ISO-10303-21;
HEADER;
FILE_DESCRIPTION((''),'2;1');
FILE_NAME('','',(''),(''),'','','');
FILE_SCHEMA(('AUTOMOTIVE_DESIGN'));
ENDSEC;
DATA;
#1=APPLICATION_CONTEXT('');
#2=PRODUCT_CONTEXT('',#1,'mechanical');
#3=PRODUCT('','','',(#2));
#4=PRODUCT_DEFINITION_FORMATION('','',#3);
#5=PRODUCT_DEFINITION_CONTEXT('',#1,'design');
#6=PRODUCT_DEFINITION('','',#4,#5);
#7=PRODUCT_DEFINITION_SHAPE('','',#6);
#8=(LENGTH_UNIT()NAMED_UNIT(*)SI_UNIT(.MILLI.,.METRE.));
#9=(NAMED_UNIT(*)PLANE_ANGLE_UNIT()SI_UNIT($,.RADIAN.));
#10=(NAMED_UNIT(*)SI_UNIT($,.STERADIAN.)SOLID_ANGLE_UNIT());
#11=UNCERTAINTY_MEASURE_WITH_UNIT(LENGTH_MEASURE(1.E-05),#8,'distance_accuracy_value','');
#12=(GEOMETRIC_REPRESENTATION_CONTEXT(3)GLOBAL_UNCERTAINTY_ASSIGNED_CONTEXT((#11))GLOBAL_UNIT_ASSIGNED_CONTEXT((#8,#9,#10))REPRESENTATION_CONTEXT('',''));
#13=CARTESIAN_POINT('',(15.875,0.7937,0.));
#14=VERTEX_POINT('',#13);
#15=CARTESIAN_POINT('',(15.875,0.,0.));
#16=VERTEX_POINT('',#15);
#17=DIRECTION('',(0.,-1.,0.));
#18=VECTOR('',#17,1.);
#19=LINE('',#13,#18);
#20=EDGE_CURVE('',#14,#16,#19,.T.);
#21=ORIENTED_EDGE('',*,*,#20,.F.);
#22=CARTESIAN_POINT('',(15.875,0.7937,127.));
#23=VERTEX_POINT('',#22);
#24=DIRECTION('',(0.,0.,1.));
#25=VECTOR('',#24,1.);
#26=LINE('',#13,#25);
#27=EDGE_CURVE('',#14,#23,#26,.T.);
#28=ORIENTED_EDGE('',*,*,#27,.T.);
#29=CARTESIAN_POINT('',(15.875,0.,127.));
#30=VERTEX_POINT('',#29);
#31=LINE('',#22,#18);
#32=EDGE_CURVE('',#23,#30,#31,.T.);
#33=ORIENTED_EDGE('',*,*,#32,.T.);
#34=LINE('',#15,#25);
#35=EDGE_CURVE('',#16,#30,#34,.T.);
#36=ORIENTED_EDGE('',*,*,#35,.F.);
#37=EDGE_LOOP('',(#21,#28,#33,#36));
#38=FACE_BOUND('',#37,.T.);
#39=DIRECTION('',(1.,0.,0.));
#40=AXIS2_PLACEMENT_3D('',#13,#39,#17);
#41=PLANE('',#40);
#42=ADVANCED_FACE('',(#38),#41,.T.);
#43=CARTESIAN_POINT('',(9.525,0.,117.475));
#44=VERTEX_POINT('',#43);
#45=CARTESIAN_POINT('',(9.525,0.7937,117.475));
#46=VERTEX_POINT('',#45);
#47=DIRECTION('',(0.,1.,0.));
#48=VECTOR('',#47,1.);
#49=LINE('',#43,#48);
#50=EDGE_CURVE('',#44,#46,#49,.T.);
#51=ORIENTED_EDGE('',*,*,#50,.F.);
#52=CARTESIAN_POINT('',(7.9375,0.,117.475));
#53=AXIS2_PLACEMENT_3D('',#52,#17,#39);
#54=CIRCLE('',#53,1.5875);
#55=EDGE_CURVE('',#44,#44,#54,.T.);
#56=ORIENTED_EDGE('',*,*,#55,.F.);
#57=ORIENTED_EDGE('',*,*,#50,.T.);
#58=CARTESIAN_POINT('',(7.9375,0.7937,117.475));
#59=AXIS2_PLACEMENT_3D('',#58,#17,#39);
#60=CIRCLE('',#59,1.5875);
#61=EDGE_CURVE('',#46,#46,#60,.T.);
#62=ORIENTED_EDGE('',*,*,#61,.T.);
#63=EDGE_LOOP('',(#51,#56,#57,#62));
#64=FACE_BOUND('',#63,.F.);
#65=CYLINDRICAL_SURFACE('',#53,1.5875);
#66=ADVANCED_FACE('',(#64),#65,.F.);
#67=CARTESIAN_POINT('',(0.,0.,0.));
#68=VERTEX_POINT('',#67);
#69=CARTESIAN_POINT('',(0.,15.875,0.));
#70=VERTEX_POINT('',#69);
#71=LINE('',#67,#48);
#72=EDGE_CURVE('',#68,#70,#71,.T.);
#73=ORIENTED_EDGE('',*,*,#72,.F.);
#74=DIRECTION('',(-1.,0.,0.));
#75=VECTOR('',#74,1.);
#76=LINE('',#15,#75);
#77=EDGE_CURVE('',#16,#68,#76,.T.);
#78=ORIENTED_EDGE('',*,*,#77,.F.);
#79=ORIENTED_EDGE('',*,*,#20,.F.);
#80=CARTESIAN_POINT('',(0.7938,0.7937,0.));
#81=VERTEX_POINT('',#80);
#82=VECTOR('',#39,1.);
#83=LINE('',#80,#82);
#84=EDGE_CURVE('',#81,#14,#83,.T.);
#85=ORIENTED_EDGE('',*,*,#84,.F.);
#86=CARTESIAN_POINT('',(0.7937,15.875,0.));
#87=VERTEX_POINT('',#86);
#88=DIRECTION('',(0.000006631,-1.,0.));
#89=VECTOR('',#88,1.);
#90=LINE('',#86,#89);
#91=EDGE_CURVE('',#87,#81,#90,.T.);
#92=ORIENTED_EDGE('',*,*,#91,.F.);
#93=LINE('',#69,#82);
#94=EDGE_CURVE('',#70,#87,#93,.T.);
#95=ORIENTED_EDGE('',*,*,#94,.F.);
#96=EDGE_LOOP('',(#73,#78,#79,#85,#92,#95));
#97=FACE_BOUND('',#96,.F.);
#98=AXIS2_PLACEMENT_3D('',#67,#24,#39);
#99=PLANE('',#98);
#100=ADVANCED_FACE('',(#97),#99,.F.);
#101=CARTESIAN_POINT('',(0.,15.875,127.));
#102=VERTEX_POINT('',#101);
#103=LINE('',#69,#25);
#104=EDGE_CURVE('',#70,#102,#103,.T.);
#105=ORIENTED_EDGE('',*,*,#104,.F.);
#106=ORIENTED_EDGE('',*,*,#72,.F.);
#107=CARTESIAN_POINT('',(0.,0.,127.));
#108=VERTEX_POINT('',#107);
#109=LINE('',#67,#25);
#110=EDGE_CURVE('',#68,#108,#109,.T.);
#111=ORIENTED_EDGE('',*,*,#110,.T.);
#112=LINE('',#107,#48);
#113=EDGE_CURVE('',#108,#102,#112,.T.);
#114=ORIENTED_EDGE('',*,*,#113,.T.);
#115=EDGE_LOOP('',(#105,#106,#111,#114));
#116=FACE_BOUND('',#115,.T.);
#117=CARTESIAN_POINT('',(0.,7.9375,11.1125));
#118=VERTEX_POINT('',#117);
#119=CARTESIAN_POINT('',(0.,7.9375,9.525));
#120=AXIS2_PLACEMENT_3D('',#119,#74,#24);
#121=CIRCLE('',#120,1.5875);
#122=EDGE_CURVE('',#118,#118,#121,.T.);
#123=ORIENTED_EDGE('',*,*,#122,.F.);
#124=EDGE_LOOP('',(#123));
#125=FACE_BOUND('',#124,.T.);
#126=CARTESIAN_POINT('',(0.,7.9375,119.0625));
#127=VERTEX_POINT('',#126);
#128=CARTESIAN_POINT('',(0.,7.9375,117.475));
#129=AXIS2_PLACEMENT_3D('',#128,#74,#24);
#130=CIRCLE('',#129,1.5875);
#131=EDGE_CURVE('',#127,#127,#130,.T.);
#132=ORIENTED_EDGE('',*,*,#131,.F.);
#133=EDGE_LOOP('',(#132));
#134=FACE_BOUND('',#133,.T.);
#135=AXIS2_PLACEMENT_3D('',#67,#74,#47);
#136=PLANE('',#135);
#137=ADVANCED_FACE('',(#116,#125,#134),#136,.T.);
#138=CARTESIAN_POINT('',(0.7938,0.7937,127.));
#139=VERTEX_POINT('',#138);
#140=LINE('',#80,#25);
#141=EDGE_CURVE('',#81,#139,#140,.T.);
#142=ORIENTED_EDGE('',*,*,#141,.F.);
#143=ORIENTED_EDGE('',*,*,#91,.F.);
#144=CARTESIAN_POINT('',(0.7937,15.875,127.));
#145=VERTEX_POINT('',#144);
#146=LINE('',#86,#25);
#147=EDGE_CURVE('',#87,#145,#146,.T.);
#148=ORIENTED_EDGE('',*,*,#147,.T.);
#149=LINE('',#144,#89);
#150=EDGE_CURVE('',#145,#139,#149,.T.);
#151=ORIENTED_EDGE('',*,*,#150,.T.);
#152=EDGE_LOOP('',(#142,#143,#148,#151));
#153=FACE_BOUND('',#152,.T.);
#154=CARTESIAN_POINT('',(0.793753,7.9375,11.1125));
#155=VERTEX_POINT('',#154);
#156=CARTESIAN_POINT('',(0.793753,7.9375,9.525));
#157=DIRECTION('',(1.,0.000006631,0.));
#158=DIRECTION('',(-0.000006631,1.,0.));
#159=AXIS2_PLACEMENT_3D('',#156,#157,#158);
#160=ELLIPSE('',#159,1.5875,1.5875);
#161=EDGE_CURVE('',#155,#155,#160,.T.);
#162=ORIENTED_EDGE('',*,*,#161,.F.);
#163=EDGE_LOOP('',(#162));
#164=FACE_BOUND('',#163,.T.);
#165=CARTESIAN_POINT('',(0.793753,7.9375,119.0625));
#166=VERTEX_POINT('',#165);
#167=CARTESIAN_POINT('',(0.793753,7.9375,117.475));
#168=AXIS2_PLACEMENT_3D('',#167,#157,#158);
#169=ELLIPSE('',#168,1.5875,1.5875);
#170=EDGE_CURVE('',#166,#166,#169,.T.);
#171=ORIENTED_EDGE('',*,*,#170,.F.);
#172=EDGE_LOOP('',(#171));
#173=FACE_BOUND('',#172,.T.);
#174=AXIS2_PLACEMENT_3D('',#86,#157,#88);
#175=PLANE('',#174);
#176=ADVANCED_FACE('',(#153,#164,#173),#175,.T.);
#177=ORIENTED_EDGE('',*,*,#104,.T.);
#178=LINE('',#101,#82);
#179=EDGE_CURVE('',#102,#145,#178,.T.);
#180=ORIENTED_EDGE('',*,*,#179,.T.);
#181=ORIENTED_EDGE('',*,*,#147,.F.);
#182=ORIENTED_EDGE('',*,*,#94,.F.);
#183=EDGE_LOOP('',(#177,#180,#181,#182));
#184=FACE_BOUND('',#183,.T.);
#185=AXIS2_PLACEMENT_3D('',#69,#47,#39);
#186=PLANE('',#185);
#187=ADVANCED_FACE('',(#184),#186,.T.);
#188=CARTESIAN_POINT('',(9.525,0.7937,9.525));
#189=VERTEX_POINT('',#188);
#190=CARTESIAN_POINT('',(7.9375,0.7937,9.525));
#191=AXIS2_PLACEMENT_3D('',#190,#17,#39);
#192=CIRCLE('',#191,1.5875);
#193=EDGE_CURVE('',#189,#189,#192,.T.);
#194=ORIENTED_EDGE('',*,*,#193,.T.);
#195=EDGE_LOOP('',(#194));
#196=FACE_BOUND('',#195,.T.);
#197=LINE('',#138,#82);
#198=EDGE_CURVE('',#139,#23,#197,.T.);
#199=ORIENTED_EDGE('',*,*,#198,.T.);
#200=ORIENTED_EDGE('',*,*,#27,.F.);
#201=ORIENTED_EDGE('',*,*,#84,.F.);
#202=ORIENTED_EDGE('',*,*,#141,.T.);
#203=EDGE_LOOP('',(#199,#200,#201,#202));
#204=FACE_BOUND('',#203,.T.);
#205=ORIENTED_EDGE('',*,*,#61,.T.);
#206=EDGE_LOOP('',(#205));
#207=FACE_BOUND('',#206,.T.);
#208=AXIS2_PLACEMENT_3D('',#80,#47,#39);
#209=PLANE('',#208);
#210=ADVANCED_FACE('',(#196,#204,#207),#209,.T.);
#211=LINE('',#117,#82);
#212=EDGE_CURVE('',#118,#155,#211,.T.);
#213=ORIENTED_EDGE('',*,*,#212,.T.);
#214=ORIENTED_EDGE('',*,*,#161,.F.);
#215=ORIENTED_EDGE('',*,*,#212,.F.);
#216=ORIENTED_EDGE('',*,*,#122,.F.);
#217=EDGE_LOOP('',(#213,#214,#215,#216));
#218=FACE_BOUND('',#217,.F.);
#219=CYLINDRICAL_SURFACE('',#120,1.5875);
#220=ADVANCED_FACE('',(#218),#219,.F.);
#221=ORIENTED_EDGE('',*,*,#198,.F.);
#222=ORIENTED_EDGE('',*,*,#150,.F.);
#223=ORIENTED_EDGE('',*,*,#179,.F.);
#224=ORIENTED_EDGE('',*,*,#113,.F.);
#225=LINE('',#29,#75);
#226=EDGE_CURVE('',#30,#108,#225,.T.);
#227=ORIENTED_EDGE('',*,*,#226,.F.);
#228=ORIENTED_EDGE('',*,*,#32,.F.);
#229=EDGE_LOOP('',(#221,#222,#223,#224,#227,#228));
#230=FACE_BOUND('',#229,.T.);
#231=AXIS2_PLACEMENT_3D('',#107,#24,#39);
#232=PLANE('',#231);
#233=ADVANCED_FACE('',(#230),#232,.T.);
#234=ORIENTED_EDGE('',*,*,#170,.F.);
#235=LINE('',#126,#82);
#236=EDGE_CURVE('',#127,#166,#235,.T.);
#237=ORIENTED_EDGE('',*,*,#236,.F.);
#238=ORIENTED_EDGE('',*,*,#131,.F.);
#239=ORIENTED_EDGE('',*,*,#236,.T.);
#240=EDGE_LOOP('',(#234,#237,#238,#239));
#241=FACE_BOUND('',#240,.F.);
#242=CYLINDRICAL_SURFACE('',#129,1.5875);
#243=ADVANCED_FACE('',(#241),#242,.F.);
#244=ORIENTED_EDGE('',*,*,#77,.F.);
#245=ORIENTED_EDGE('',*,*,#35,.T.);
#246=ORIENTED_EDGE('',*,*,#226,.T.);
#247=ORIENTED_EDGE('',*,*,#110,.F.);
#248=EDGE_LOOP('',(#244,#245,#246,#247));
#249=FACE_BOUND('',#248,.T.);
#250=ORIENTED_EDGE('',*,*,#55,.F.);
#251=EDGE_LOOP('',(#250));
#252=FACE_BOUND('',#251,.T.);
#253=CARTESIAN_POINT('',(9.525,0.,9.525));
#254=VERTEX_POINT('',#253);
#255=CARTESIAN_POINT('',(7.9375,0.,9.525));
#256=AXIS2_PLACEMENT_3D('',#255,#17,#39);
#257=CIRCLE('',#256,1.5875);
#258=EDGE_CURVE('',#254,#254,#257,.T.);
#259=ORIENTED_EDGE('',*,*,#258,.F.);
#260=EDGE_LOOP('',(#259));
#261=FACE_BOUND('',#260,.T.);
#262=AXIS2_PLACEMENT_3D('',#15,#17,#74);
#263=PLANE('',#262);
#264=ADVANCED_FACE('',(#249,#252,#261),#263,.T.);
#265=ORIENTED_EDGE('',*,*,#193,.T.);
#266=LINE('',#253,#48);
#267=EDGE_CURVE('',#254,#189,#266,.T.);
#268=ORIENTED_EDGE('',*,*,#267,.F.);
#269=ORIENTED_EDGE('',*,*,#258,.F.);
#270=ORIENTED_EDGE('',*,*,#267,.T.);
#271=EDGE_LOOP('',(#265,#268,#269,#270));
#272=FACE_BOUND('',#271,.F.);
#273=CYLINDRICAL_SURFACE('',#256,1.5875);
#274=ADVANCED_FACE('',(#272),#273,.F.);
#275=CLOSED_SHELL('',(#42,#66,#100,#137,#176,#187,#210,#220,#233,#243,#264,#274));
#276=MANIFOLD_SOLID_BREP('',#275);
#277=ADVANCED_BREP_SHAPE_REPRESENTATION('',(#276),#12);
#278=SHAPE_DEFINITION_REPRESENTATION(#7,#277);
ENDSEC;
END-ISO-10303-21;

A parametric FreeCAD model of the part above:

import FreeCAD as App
import Part
import Sketcher
from FreeCAD import Vector
Q = App.Units.Quantity


def add_polygon(sketch, points):
    """Adds a closed chain of lines whose ends are joined by coincident constraints."""
    first, n = sketch.GeometryCount, len(points)
    for a, b in zip(points, points[1:] + points[:1]):
        sketch.addGeometry(Part.LineSegment(App.Vector(*a, 0), App.Vector(*b, 0)), False)
    for i in range(n):
        sketch.addConstraint(Sketcher.Constraint("Coincident", first + i, 2, first + (i + 1) % n, 1))

doc = App.newDocument("Part")
params = doc.addObject("Spreadsheet::Sheet", "Params")
for row, (alias, value) in enumerate([
    ("sketch1_width", "0.625 in"),
    ("sketch1_width2", "0.031248 in"),
    ("pad1_length", "5 in"),
    ("sketch2_diameter", "0.125 in"),
    ("sketch3_diameter", "0.125 in"),
], start=1):
    params.set(f"A{row}", alias)
    params.set(f"B{row}", "=" + value)
    params.setAlias(f"B{row}", alias)

body = doc.addObject("PartDesign::Body", "Body")

sketch1 = body.newObject("Sketcher::SketchObject", "Sketch")
sketch1.AttachmentSupport = (doc.getObject("XY_Plane"), [""])
sketch1.MapMode = "FlatFace"
add_polygon(sketch1, [(0, 15.9), (0, 0), (15.9, 0), (15.9, 0.8), (0.8, 0.8), (0.8, 15.9)])
sketch1.addConstraint([
    Sketcher.Constraint("Vertical", 0),
    Sketcher.Constraint("Horizontal", 1),
    Sketcher.Constraint("Vertical", 2),
    Sketcher.Constraint("Horizontal", 3),
    Sketcher.Constraint("Vertical", 4),
    Sketcher.Constraint("Horizontal", 5),
    Sketcher.Constraint("Coincident", 0, 2, -1, 1),
    Sketcher.Constraint("Equal", 1, 0),
    Sketcher.Constraint("Equal", 5, 2),
    Sketcher.Constraint("DistanceX", 1, 1, 1, 2, Q("0.625 in")),
    Sketcher.Constraint("DistanceX", 5, 2, 5, 1, Q("0.031248 in")),
])
sketch1.setExpression("Constraints[15]", "Params.sketch1_width")
sketch1.setExpression("Constraints[16]", "Params.sketch1_width2")
pad1 = body.newObject("PartDesign::Pad", "Pad")
pad1.Profile = sketch1
pad1.setExpression("Length", "Params.pad1_length")

sketch2 = body.newObject("Sketcher::SketchObject", "Sketch001")
sketch2.AttachmentSupport = (doc.getObject("XZ_Plane"), [""])
sketch2.MapMode = "FlatFace"
sketch2.addGeometry([
    Part.Circle(Vector(7.9, 117.5, 0), Vector(0, 0, 1), 1.6),
    Part.Circle(Vector(7.9, 9.5, 0), Vector(0, 0, 1), 1.6),
], False)
sketch2.addConstraint([
    Sketcher.Constraint("Equal", 0, 1),
    Sketcher.Constraint("Vertical", 0, 3, 1, 3),
    Sketcher.Constraint("Diameter", 0, Q("0.125 in")),
    Sketcher.Constraint("DistanceY", -1, 1, 1, 3, Q("0.375 in")),
    Sketcher.Constraint("DistanceY", 1, 3, 0, 3, Q("4.25 in")),
    Sketcher.Constraint("DistanceX", -1, 1, 0, 3, Q("0.3125 in")),
])
sketch2.setExpression("Constraints[2]", "Params.sketch2_diameter")
pocket1 = body.newObject("PartDesign::Pocket", "Pocket")
pocket1.Profile = sketch2
pocket1.Type = "ThroughAll"

sketch3 = body.newObject("Sketcher::SketchObject", "Sketch002")
sketch3.AttachmentSupport = (doc.getObject("YZ_Plane"), [""])
sketch3.MapMode = "FlatFace"
sketch3.addGeometry([
    Part.Circle(Vector(7.9, 9.5, 0), Vector(0, 0, 1), 1.6),
    Part.Circle(Vector(7.9, 117.5, 0), Vector(0, 0, 1), 1.6),
], False)
sketch3.addConstraint([
    Sketcher.Constraint("Equal", 0, 1),
    Sketcher.Constraint("Vertical", 0, 3, 1, 3),
    Sketcher.Constraint("Diameter", 0, Q("0.125 in")),
    Sketcher.Constraint("DistanceY", -1, 1, 0, 3, Q("0.375 in")),
    Sketcher.Constraint("DistanceY", 0, 3, 1, 3, Q("4.25 in")),
    Sketcher.Constraint("DistanceX", -1, 1, 0, 3, Q("0.3125 in")),
])
sketch3.setExpression("Constraints[2]", "Params.sketch3_diameter")
pocket2 = body.newObject("PartDesign::Pocket", "Pocket001")
pocket2.Profile = sketch3
pocket2.Type = "ThroughAll"
pocket2.Reversed = True

doc.recompute()
